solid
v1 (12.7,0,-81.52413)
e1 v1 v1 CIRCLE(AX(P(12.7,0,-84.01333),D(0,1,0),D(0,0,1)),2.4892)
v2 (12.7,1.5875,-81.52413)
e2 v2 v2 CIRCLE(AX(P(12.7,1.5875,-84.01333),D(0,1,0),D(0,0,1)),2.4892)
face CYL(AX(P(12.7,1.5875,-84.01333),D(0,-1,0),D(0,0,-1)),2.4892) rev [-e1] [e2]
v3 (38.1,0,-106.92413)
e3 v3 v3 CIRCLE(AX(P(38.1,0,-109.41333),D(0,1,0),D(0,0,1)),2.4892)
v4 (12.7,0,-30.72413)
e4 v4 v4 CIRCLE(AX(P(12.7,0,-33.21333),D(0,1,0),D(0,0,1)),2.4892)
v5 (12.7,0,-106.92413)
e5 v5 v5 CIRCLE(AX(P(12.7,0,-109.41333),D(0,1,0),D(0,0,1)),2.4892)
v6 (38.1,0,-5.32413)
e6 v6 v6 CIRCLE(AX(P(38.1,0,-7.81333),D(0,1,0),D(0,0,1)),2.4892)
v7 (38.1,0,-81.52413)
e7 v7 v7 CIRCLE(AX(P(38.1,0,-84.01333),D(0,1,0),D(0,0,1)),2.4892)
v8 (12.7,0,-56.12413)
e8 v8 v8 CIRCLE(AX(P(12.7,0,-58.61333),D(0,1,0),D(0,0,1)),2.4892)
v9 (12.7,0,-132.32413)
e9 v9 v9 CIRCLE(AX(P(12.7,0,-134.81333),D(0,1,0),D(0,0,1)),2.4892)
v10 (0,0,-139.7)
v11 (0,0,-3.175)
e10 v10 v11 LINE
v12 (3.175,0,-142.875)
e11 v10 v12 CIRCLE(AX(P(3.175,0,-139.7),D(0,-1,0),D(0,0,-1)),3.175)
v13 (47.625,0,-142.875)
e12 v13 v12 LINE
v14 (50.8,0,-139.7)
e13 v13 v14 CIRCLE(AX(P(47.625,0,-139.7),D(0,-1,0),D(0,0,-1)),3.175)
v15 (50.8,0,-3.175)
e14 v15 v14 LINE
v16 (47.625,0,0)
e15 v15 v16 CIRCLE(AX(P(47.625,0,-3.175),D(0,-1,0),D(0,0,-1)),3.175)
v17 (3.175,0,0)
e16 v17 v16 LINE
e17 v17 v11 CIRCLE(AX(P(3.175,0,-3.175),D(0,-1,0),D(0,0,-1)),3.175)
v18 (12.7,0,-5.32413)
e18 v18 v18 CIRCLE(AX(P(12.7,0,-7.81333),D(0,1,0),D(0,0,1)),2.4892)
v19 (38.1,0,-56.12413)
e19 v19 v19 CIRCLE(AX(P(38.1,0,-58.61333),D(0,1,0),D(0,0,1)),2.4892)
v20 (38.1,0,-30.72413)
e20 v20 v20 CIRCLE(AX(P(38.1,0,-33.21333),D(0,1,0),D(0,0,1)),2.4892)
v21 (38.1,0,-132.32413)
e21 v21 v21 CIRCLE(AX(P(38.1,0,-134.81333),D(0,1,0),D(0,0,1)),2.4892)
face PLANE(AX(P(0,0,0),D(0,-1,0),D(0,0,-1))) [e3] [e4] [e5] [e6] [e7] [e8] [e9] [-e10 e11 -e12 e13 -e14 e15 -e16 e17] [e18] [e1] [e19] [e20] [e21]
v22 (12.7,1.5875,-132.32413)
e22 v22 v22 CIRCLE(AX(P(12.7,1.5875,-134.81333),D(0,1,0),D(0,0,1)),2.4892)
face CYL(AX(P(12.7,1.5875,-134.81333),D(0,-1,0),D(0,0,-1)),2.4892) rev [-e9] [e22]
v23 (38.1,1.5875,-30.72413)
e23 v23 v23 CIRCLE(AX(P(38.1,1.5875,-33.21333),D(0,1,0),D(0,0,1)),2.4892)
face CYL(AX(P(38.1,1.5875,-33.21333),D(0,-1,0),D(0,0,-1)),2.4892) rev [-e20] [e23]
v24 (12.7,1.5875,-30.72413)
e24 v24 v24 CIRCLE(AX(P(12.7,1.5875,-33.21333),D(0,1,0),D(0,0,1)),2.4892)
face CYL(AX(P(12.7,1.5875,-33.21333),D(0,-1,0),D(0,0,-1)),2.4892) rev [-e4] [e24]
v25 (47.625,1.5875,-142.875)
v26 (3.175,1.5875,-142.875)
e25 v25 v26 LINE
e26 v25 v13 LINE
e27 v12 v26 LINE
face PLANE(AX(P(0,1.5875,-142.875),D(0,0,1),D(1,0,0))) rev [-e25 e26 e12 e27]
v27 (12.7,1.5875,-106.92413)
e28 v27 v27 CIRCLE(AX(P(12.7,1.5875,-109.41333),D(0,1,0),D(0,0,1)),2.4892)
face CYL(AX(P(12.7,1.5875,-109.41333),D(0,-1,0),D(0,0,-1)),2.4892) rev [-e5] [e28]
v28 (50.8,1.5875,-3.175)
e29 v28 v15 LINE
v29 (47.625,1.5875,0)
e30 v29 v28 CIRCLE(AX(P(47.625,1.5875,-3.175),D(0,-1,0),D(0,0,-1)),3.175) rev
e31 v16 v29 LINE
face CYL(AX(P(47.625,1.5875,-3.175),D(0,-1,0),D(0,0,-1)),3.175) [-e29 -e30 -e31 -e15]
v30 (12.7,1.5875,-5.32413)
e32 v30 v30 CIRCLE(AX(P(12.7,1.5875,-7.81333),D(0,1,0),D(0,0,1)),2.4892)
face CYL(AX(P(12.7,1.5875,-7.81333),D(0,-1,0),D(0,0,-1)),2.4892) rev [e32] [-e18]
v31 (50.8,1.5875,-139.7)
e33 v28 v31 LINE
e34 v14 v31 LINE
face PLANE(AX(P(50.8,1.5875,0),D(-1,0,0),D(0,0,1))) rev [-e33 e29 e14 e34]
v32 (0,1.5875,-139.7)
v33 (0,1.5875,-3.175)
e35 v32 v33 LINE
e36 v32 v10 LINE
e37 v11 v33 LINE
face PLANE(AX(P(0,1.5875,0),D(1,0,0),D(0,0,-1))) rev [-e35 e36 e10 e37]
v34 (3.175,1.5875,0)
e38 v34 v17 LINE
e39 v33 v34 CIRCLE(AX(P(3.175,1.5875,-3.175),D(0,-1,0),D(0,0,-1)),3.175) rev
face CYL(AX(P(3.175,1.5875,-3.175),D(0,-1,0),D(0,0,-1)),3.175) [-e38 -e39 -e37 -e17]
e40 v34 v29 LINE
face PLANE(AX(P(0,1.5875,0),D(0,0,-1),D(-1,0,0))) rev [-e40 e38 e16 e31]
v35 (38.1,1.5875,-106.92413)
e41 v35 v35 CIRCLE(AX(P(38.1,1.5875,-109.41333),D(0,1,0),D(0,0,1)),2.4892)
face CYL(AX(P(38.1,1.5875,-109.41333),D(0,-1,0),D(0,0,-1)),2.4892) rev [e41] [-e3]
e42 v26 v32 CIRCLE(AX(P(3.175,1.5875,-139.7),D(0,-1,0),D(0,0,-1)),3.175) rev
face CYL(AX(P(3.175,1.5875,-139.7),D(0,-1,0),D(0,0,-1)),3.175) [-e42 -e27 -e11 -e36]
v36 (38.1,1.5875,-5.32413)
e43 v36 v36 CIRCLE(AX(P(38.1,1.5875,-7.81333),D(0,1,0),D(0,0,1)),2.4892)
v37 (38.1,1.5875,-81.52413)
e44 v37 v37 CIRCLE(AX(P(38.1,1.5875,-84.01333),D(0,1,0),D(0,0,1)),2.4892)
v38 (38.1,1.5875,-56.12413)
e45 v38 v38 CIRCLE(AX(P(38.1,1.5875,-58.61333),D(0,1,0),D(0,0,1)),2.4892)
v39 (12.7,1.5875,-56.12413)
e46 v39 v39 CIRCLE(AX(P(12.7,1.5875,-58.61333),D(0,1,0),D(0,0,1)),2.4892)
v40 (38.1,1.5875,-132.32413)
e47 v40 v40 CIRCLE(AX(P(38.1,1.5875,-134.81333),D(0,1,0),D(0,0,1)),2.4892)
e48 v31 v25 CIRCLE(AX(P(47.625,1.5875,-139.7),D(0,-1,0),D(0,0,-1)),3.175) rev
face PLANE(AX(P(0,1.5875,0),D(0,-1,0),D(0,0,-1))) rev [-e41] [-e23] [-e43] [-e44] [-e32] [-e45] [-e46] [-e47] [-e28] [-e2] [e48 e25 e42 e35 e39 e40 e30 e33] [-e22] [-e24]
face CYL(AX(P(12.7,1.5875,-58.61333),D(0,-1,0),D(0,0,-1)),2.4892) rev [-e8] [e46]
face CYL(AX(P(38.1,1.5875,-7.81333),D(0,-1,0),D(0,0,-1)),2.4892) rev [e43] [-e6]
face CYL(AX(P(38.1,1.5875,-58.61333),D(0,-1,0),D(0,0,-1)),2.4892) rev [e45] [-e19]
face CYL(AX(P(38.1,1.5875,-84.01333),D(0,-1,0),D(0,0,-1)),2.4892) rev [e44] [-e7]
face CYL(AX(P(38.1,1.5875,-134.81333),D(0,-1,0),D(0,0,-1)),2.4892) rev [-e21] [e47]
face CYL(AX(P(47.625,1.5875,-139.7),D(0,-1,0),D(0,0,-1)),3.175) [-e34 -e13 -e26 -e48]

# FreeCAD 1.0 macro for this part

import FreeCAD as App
import Part
import Sketcher

V = App.Vector
Q = App.Units.Quantity


def edges_at(feature, points):
    """Names of the edges that pass closest to the given points."""
    edges = feature.Shape.Edges
    near = lambda p: min(range(len(edges)), key=lambda i: edges[i].distToShape(Part.Vertex(*p))[0])
    return sorted({f"Edge{near(p) + 1}" for p in points})


def add_polygon(sketch, points):
    """Adds a closed chain of lines whose ends are joined by coincident constraints."""
    first, n = sketch.GeometryCount, len(points)
    for a, b in zip(points, points[1:] + points[:1]):
        sketch.addGeometry(Part.LineSegment(App.Vector(*a, 0), App.Vector(*b, 0)), False)
    for i in range(n):
        sketch.addConstraint(Sketcher.Constraint("Coincident", first + i, 2, first + (i + 1) % n, 1))

doc = App.newDocument("Part")
body = doc.addObject("PartDesign::Body", "Body")

# Sketch on XZ plane
sketch1 = body.newObject("Sketcher::SketchObject", "Sketch")
sketch1.AttachmentSupport = (doc.getObject("XZ_Plane"), [""])
sketch1.MapMode = "FlatFace"
add_polygon(sketch1, [(0, -142.875), (0, 0), (50.8, 0), (50.8, -142.875)])  # lines 0-3
sketch1.addGeometry(Part.Circle(V(12.7, -7.81333, 0), V(0, 0, 1), 2.4892), False)  # 4
sketch1.addGeometry(Part.Circle(V(12.7, -33.21333, 0), V(0, 0, 1), 2.4892), False)  # 5
sketch1.addGeometry(Part.Circle(V(12.7, -58.61333, 0), V(0, 0, 1), 2.4892), False)  # 6
sketch1.addGeometry(Part.Circle(V(38.1, -7.81333, 0), V(0, 0, 1), 2.4892), False)  # 7
sketch1.addGeometry(Part.Circle(V(38.1, -33.21333, 0), V(0, 0, 1), 2.4892), False)  # 8
sketch1.addGeometry(Part.Circle(V(38.1, -58.61333, 0), V(0, 0, 1), 2.4892), False)  # 9
sketch1.addGeometry(Part.Circle(V(12.7, -84.01333, 0), V(0, 0, 1), 2.4892), False)  # 10
sketch1.addGeometry(Part.Circle(V(12.7, -109.41333, 0), V(0, 0, 1), 2.4892), False)  # 11
sketch1.addGeometry(Part.Circle(V(12.7, -134.81333, 0), V(0, 0, 1), 2.4892), False)  # 12
sketch1.addGeometry(Part.Circle(V(38.1, -84.01333, 0), V(0, 0, 1), 2.4892), False)  # 13
sketch1.addGeometry(Part.Circle(V(38.1, -109.41333, 0), V(0, 0, 1), 2.4892), False)  # 14
sketch1.addGeometry(Part.Circle(V(38.1, -134.81333, 0), V(0, 0, 1), 2.4892), False)  # 15
sketch1.addConstraint(Sketcher.Constraint("Vertical", 0))
sketch1.addConstraint(Sketcher.Constraint("Horizontal", 1))
sketch1.addConstraint(Sketcher.Constraint("Vertical", 2))
sketch1.addConstraint(Sketcher.Constraint("Horizontal", 3))
sketch1.addConstraint(Sketcher.Constraint("Coincident", 0, 2, -1, 1))
sketch1.addConstraint(Sketcher.Constraint("Equal", 4, 5))
sketch1.addConstraint(Sketcher.Constraint("Equal", 5, 6))
sketch1.addConstraint(Sketcher.Constraint("Equal", 6, 7))
sketch1.addConstraint(Sketcher.Constraint("Equal", 7, 8))
sketch1.addConstraint(Sketcher.Constraint("Equal", 8, 9))
sketch1.addConstraint(Sketcher.Constraint("Equal", 9, 10))
sketch1.addConstraint(Sketcher.Constraint("Equal", 10, 11))
sketch1.addConstraint(Sketcher.Constraint("Equal", 11, 12))
sketch1.addConstraint(Sketcher.Constraint("Equal", 12, 13))
sketch1.addConstraint(Sketcher.Constraint("Equal", 13, 14))
sketch1.addConstraint(Sketcher.Constraint("Equal", 14, 15))
sketch1.addConstraint(Sketcher.Constraint("Horizontal", 4, 3, 7, 3))
sketch1.addConstraint(Sketcher.Constraint("Horizontal", 5, 3, 8, 3))
sketch1.addConstraint(Sketcher.Constraint("Horizontal", 6, 3, 9, 3))
sketch1.addConstraint(Sketcher.Constraint("Horizontal", 10, 3, 13, 3))
sketch1.addConstraint(Sketcher.Constraint("Horizontal", 11, 3, 14, 3))
sketch1.addConstraint(Sketcher.Constraint("Horizontal", 12, 3, 15, 3))
sketch1.addConstraint(Sketcher.Constraint("Vertical", 4, 3, 5, 3))
sketch1.addConstraint(Sketcher.Constraint("Vertical", 5, 3, 6, 3))
sketch1.addConstraint(Sketcher.Constraint("Vertical", 7, 3, 8, 3))
sketch1.addConstraint(Sketcher.Constraint("Vertical", 8, 3, 9, 3))
sketch1.addConstraint(Sketcher.Constraint("Vertical", 6, 3, 10, 3))
sketch1.addConstraint(Sketcher.Constraint("Vertical", 10, 3, 11, 3))
sketch1.addConstraint(Sketcher.Constraint("Vertical", 11, 3, 12, 3))
sketch1.addConstraint(Sketcher.Constraint("Vertical", 9, 3, 13, 3))
sketch1.addConstraint(Sketcher.Constraint("Vertical", 13, 3, 14, 3))
sketch1.addConstraint(Sketcher.Constraint("Vertical", 14, 3, 15, 3))
sketch1.addConstraint(Sketcher.Constraint("DistanceX", 1, 1, 1, 2, Q("2 in")))
sketch1.addConstraint(Sketcher.Constraint("Diameter", 4, Q("0.196 in")))
sketch1.addConstraint(Sketcher.Constraint("DistanceY", 5, 3, 4, 3, Q("1 in")))
sketch1.addConstraint(Sketcher.Constraint("DistanceY", 6, 3, 5, 3, Q("1 in")))
sketch1.addConstraint(Sketcher.Constraint("DistanceX", 4, 3, 7, 3, Q("1 in")))
sketch1.addConstraint(Sketcher.Constraint("DistanceY", 10, 3, 6, 3, Q("1 in")))
sketch1.addConstraint(Sketcher.Constraint("DistanceY", 11, 3, 10, 3, Q("1 in")))
sketch1.addConstraint(Sketcher.Constraint("DistanceY", 12, 3, 11, 3, Q("1 in")))
sketch1.addConstraint(Sketcher.Constraint("DistanceX", -1, 1, 4, 3, Q("0.5 in")))
sketch1.addConstraint(Sketcher.Constraint("DistanceY", 0, 1, 0, 2, Q("5.625 in")))
sketch1.addConstraint(Sketcher.Constraint("DistanceY", 4, 3, -1, 1, 7.81333))
pad1 = body.newObject("PartDesign::Pad", "Pad")
pad1.Profile = sketch1
pad1.Length = Q("0.0625 in")
pad1.Reversed = True
doc.recompute()

fillet = body.newObject("PartDesign::Fillet", "Fillet")
fillet.Base = (pad1, edges_at(pad1, [
    (0, 0.794, -142.875),
    (50.8, 0.794, -142.875),
    (50.8, 0.794, 0),
    (0, 0.794, 0),
]))
fillet.Radius = Q("0.125 in")

doc.recompute()
